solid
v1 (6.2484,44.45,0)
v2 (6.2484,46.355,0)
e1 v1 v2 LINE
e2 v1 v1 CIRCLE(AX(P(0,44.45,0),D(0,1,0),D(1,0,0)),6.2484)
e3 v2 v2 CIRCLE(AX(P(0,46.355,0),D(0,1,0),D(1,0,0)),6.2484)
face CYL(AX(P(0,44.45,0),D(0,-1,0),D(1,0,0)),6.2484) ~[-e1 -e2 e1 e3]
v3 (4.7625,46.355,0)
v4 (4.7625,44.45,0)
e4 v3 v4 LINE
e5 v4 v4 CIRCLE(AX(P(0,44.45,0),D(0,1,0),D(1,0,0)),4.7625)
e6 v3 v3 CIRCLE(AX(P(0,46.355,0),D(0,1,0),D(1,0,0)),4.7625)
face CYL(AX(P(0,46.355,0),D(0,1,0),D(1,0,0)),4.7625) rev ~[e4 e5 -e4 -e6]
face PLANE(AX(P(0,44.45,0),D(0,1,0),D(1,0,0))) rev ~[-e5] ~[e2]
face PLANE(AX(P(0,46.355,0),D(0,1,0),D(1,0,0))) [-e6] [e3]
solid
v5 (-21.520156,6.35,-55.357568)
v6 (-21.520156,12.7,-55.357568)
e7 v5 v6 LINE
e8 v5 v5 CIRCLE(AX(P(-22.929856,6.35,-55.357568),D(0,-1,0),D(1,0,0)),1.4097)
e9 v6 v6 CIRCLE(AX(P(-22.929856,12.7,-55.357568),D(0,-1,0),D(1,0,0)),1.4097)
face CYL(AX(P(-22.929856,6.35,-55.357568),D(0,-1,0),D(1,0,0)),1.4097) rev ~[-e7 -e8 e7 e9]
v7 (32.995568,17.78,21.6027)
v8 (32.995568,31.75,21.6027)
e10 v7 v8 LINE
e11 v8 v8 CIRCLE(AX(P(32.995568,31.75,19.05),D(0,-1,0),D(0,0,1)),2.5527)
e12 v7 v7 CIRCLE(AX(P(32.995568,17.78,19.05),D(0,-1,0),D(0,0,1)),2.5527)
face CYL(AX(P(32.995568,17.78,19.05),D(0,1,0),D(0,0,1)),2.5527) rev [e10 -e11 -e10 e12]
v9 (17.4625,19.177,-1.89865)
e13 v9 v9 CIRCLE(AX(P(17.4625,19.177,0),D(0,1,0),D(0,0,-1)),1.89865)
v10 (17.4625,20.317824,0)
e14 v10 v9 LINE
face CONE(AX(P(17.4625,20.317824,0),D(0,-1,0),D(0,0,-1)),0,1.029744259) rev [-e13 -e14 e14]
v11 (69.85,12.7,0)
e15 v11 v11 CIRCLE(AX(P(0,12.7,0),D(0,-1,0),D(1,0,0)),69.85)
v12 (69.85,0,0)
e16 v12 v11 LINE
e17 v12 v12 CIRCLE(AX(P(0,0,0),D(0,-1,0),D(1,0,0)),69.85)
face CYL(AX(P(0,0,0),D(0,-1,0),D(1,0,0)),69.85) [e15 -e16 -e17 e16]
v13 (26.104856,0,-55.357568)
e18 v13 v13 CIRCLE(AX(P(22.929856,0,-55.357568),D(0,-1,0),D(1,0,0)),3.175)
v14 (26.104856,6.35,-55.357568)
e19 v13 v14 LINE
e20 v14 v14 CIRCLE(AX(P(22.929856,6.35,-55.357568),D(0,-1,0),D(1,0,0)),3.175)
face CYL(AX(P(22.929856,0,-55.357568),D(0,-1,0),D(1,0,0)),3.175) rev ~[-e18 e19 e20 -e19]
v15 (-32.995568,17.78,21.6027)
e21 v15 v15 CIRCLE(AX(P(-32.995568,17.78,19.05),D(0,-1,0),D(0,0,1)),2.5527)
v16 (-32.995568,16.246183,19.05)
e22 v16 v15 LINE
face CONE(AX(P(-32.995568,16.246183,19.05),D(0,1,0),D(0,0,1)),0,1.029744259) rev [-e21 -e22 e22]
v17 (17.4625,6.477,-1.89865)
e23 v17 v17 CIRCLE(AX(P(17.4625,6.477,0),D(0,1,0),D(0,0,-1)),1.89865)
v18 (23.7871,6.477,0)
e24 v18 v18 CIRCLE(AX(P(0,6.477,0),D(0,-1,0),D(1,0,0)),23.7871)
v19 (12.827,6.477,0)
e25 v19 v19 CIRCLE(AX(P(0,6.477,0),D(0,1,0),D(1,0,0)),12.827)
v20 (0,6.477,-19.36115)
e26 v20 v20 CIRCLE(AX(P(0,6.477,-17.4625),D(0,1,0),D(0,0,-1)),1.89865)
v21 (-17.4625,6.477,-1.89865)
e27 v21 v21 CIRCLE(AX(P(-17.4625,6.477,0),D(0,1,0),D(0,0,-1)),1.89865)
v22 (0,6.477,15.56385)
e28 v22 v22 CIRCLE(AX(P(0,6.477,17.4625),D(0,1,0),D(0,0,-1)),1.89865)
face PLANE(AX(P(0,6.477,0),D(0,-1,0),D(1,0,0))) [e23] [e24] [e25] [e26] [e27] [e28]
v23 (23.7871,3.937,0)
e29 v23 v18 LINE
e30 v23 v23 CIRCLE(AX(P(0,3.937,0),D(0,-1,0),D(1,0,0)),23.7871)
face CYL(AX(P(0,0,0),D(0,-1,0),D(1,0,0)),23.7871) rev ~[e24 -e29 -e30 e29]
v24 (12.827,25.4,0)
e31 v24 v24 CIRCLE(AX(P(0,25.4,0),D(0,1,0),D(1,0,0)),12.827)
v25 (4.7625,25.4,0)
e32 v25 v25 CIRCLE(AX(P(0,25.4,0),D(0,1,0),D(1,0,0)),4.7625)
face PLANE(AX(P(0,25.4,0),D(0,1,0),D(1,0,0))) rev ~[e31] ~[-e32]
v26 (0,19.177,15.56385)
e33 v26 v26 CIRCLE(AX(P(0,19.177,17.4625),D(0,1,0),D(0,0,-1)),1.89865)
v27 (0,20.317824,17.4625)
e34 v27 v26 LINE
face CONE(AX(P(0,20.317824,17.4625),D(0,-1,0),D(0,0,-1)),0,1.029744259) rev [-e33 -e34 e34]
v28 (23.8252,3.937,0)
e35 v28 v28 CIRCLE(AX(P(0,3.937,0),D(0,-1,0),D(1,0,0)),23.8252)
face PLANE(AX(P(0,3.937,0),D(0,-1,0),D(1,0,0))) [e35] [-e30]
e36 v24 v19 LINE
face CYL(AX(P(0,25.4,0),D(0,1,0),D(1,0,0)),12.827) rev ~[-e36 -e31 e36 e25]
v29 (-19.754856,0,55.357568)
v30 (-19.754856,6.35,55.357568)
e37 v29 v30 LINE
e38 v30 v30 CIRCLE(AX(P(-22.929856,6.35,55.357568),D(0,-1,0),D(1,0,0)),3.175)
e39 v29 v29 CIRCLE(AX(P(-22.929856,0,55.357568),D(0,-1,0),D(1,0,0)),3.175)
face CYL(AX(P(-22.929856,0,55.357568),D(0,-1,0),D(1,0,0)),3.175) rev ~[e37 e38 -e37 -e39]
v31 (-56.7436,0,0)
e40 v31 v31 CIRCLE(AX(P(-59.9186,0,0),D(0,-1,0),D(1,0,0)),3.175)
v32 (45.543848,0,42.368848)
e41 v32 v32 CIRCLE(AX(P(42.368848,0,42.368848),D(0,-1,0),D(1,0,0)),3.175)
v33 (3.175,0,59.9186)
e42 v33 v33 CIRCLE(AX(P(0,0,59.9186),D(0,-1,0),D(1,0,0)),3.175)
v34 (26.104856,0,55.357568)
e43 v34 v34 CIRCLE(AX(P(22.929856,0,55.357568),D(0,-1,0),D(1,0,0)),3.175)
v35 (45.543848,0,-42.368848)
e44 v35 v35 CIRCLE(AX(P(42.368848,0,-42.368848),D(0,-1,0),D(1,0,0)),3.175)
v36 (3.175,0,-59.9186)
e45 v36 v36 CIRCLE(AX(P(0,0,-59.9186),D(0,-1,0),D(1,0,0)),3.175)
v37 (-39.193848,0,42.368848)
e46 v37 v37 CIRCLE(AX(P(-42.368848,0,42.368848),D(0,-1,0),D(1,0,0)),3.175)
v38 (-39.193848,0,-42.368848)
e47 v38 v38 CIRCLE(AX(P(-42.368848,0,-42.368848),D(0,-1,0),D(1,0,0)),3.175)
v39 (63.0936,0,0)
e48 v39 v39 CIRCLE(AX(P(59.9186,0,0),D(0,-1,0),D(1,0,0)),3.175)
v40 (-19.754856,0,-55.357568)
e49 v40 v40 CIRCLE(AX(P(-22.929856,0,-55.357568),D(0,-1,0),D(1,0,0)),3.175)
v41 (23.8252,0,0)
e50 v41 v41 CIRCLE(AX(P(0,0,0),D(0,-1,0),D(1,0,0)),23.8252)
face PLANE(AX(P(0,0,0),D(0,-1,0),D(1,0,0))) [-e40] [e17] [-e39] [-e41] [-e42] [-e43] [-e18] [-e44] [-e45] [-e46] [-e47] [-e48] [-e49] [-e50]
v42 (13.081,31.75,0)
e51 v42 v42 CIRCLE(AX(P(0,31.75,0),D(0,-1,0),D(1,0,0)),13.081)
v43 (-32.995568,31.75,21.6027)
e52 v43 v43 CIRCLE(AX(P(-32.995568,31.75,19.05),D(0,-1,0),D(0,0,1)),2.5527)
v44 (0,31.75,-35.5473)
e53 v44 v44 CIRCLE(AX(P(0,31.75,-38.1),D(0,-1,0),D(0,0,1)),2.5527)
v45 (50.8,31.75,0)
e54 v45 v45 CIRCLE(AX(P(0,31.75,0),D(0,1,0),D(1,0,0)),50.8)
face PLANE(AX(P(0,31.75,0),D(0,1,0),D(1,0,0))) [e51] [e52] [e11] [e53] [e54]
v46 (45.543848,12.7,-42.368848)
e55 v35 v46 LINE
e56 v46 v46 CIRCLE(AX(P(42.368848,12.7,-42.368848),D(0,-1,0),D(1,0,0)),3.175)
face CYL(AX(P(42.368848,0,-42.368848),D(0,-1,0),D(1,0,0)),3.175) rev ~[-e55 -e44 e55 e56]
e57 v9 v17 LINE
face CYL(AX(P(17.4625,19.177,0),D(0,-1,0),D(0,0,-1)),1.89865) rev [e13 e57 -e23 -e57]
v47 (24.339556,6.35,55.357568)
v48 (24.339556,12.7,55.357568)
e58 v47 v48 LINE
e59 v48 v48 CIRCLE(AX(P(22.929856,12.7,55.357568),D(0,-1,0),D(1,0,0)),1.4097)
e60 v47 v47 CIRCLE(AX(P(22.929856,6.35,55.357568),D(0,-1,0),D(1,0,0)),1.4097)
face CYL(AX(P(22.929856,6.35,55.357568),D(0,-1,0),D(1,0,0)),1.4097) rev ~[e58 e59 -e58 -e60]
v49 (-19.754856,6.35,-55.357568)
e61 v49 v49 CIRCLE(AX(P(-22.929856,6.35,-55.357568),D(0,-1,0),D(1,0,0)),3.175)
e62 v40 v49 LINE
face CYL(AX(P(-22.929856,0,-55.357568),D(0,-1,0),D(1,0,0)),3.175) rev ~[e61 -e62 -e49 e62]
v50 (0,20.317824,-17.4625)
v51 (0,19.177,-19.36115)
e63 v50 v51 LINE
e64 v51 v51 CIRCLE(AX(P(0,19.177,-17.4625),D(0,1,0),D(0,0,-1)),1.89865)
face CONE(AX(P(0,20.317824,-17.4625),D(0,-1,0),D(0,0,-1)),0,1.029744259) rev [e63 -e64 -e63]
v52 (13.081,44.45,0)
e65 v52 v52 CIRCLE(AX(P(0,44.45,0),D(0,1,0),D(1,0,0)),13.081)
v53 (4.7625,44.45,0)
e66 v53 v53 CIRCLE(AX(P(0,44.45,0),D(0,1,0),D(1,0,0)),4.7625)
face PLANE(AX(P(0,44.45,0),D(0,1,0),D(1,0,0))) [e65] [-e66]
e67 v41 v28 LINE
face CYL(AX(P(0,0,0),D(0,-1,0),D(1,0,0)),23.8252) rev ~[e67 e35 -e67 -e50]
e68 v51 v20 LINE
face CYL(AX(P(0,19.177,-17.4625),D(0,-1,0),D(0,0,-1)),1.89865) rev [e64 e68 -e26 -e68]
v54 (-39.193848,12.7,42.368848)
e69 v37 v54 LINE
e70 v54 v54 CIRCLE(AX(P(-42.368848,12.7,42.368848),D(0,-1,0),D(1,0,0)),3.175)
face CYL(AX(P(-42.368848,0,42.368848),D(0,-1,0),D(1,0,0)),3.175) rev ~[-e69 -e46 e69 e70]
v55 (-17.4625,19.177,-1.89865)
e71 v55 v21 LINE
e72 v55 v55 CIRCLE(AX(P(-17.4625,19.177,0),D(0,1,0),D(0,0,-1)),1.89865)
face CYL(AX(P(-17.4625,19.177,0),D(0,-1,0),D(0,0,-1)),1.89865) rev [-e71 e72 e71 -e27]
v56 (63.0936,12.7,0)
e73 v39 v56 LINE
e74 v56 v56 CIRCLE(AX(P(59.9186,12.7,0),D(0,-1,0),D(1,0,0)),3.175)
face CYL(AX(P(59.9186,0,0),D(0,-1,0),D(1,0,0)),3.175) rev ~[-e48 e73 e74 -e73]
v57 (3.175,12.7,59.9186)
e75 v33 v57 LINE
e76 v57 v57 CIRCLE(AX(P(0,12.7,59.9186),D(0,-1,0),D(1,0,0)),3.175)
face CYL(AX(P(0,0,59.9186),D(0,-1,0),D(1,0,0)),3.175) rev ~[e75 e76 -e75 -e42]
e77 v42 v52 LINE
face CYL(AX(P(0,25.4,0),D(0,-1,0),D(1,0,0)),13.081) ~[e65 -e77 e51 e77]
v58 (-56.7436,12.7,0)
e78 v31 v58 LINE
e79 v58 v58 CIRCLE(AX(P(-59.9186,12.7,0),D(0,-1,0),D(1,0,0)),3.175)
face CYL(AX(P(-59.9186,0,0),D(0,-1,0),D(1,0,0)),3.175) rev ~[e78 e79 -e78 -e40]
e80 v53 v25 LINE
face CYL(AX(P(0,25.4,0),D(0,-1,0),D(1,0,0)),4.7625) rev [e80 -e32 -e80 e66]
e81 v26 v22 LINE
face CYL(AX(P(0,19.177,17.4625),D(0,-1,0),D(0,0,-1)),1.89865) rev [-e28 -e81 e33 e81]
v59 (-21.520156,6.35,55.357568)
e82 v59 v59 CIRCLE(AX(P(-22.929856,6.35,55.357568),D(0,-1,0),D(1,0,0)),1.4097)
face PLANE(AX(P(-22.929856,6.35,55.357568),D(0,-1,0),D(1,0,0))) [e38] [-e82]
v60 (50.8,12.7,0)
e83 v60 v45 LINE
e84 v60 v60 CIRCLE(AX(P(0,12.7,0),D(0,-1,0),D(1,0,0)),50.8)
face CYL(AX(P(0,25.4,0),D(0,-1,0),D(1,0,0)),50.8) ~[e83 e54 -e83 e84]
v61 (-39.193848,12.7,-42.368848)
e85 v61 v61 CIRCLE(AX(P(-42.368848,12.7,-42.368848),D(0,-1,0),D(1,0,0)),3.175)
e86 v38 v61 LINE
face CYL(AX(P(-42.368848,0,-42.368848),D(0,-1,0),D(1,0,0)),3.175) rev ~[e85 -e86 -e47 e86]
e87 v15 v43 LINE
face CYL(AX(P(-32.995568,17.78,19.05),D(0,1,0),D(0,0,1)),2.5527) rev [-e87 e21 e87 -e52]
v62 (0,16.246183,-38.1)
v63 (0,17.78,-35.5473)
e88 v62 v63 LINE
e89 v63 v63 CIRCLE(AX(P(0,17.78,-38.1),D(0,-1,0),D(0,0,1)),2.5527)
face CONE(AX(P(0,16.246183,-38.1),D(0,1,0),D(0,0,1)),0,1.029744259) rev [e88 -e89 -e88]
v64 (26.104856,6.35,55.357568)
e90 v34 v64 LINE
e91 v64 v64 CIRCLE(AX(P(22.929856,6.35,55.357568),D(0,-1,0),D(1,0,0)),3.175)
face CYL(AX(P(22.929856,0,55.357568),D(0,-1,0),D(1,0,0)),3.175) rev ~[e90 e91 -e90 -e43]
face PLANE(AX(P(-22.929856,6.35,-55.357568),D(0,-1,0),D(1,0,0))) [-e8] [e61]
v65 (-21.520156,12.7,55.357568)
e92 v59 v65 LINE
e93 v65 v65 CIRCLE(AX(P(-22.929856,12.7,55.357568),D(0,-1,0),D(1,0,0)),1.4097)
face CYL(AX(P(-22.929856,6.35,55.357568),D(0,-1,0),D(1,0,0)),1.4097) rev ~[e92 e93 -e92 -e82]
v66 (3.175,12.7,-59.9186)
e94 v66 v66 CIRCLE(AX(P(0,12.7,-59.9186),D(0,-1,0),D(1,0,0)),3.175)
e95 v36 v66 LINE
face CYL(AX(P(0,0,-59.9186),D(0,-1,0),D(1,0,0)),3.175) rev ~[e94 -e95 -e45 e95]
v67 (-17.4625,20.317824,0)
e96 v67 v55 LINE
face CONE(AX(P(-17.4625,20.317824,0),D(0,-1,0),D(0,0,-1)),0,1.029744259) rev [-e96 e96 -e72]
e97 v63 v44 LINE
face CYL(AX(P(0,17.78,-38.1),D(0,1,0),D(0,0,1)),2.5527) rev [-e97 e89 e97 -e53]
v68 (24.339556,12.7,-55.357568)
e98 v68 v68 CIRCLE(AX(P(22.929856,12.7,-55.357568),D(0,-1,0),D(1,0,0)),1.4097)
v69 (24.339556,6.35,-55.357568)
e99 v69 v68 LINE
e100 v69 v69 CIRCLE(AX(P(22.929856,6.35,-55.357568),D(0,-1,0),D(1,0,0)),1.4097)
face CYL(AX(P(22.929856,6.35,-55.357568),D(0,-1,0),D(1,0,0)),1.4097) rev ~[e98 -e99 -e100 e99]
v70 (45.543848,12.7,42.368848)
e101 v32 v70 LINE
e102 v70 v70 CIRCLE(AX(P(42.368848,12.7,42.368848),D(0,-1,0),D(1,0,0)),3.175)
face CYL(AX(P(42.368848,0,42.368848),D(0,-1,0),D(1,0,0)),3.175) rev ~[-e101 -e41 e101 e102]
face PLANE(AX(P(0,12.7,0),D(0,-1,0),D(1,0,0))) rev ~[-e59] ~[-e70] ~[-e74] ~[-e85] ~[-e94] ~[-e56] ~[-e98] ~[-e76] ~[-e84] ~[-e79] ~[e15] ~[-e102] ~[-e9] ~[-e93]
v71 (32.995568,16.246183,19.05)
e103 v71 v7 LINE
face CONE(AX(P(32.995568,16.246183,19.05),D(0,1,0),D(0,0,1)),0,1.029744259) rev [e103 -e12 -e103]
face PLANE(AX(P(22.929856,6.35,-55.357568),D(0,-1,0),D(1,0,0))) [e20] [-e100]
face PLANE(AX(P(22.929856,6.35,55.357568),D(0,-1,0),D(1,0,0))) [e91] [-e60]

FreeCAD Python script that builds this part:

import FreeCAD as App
import Part
import Sketcher
Q = App.Units.Quantity


def add_polygon(sketch, points):
    """Adds a closed chain of lines whose ends are joined by coincident constraints."""
    first, n = sketch.GeometryCount, len(points)
    for a, b in zip(points, points[1:] + points[:1]):
        sketch.addGeometry(Part.LineSegment(App.Vector(*a, 0), App.Vector(*b, 0)), False)
    for i in range(n):
        sketch.addConstraint(Sketcher.Constraint("Coincident", first + i, 2, first + (i + 1) % n, 1))

doc = App.newDocument("Part")
body = doc.addObject("PartDesign::Body", "Body")

# Sketch on XZ plane
sketch1 = body.newObject("Sketcher::SketchObject", "Sketch")
sketch1.AttachmentSupport = (doc.getObject("XZ_Plane"), [""])
sketch1.MapMode = "FlatFace"
sketch1.addGeometry(Part.Circle(App.Vector(0, 0, 0), App.Vector(0, 0, 1), 51), False)
sketch1.addConstraint([
    Sketcher.Constraint("Coincident", 0, 3, -1, 1),
    Sketcher.Constraint("Diameter", 0, Q("4 in")),
])
pad1 = body.newObject("PartDesign::Pad", "Pad")
pad1.Profile = sketch1
pad1.Length = Q("1 in")
pad1.Reversed = True

# Sketch on XZ plane
sketch2 = body.newObject("Sketcher::SketchObject", "Sketch001")
sketch2.AttachmentSupport = (doc.getObject("XZ_Plane"), [""])
sketch2.MapMode = "FlatFace"
sketch2.addGeometry([
    Part.Circle(App.Vector(0, 0, 0), App.Vector(0, 0, 1), 70),
    Part.Circle(App.Vector(0, 0, 0), App.Vector(0, 0, 1), 51),
], False)
sketch2.addConstraint([
    Sketcher.Constraint("Coincident", 0, 3, -1, 1),
    Sketcher.Constraint("Coincident", 1, 3, -1, 1),
    Sketcher.Constraint("Diameter", 1, Q("4 in")),
    Sketcher.Constraint("Diameter", 0, Q("5.5 in")),
])
pad2 = body.newObject("PartDesign::Pad", "Pad001")
pad2.Profile = sketch2
pad2.Length = Q("0.5 in")
pad2.Reversed = True

# Sketch on XZ plane
sketch3 = body.newObject("Sketcher::SketchObject", "Sketch002")
sketch3.AttachmentSupport = (doc.getObject("XZ_Plane"), [""])
sketch3.MapMode = "FlatFace"
sketch3.addGeometry(Part.Circle(App.Vector(0, -59.9, 0), App.Vector(0, 0, 1), 3.2), False)
sketch3.addConstraint([
    Sketcher.Constraint("PointOnObject", 0, 3, -2),
    Sketcher.Constraint("Diameter", 0, Q("0.25 in")),
    Sketcher.Constraint("DistanceY", 0, 3, -1, 1, Q("2.359 in")),
])
pocket1 = body.newObject("PartDesign::Pocket", "Pocket")
pocket1.Profile = sketch3
pocket1.Type = "UpToFirst"

# Sketch on XZ plane
sketch4 = body.newObject("Sketcher::SketchObject", "Sketch003")
sketch4.AttachmentSupport = (doc.getObject("XZ_Plane"), [""])
sketch4.MapMode = "FlatFace"
sketch4.addGeometry(Part.Circle(App.Vector(-42.4, -42.4, 0), App.Vector(0, 0, 1), 3.2), False)
sketch4.addConstraint([
    Sketcher.Constraint("Diameter", 0, Q("0.25 in")),
    Sketcher.Constraint("DistanceX", 0, 3, -1, 1, Q("42.368848 mm")),
    Sketcher.Constraint("DistanceY", 0, 3, -1, 1, Q("42.368848 mm")),
])
pocket2 = body.newObject("PartDesign::Pocket", "Pocket001")
pocket2.Profile = sketch4
pocket2.Type = "UpToFirst"

# Sketch on XZ plane
sketch5 = body.newObject("Sketcher::SketchObject", "Sketch004")
sketch5.AttachmentSupport = (doc.getObject("XZ_Plane"), [""])
sketch5.MapMode = "FlatFace"
sketch5.addGeometry(Part.Circle(App.Vector(-59.9, 0, 0), App.Vector(0, 0, 1), 3.2), False)
sketch5.addConstraint([
    Sketcher.Constraint("PointOnObject", 0, 3, -1),
    Sketcher.Constraint("Diameter", 0, Q("0.25 in")),
    Sketcher.Constraint("DistanceX", 0, 3, -1, 1, Q("2.359 in")),
])
pocket3 = body.newObject("PartDesign::Pocket", "Pocket002")
pocket3.Profile = sketch5
pocket3.Type = "UpToFirst"

# Sketch on XZ plane
sketch6 = body.newObject("Sketcher::SketchObject", "Sketch005")
sketch6.AttachmentSupport = (doc.getObject("XZ_Plane"), [""])
sketch6.MapMode = "FlatFace"
sketch6.addGeometry(Part.Circle(App.Vector(-42.4, 42.4, 0), App.Vector(0, 0, 1), 3.2), False)
sketch6.addConstraint([
    Sketcher.Constraint("Diameter", 0, Q("0.25 in")),
    Sketcher.Constraint("DistanceX", 0, 3, -1, 1, Q("42.368848 mm")),
    Sketcher.Constraint("DistanceY", -1, 1, 0, 3, Q("42.368848 mm")),
])
pocket4 = body.newObject("PartDesign::Pocket", "Pocket003")
pocket4.Profile = sketch6
pocket4.Type = "UpToFirst"

# Sketch on XZ plane
sketch7 = body.newObject("Sketcher::SketchObject", "Sketch006")
sketch7.AttachmentSupport = (doc.getObject("XZ_Plane"), [""])
sketch7.MapMode = "FlatFace"
sketch7.addGeometry(Part.Circle(App.Vector(0, 59.9, 0), App.Vector(0, 0, 1), 3.2), False)
sketch7.addConstraint([
    Sketcher.Constraint("PointOnObject", 0, 3, -2),
    Sketcher.Constraint("Diameter", 0, Q("0.25 in")),
    Sketcher.Constraint("DistanceY", -1, 1, 0, 3, Q("2.359 in")),
])
pocket5 = body.newObject("PartDesign::Pocket", "Pocket004")
pocket5.Profile = sketch7
pocket5.Type = "UpToFirst"

# Sketch on XZ plane
sketch8 = body.newObject("Sketcher::SketchObject", "Sketch007")
sketch8.AttachmentSupport = (doc.getObject("XZ_Plane"), [""])
sketch8.MapMode = "FlatFace"
sketch8.addGeometry(Part.Circle(App.Vector(42.4, 42.4, 0), App.Vector(0, 0, 1), 3.2), False)
sketch8.addConstraint([
    Sketcher.Constraint("Diameter", 0, Q("0.25 in")),
    Sketcher.Constraint("DistanceX", -1, 1, 0, 3, Q("42.368848 mm")),
    Sketcher.Constraint("DistanceY", -1, 1, 0, 3, Q("42.368848 mm")),
])
pocket6 = body.newObject("PartDesign::Pocket", "Pocket005")
pocket6.Profile = sketch8
pocket6.Type = "UpToFirst"

# Sketch on XZ plane
sketch9 = body.newObject("Sketcher::SketchObject", "Sketch008")
sketch9.AttachmentSupport = (doc.getObject("XZ_Plane"), [""])
sketch9.MapMode = "FlatFace"
sketch9.addGeometry(Part.Circle(App.Vector(59.9, 0, 0), App.Vector(0, 0, 1), 3.2), False)
sketch9.addConstraint([
    Sketcher.Constraint("PointOnObject", 0, 3, -1),
    Sketcher.Constraint("Diameter", 0, Q("0.25 in")),
    Sketcher.Constraint("DistanceX", -1, 1, 0, 3, Q("2.359 in")),
])
pocket7 = body.newObject("PartDesign::Pocket", "Pocket006")
pocket7.Profile = sketch9
pocket7.Type = "UpToFirst"

# Sketch on XZ plane
sketch10 = body.newObject("Sketcher::SketchObject", "Sketch009")
sketch10.AttachmentSupport = (doc.getObject("XZ_Plane"), [""])
sketch10.MapMode = "FlatFace"
sketch10.addGeometry(Part.Circle(App.Vector(42.4, -42.4, 0), App.Vector(0, 0, 1), 3.2), False)
sketch10.addConstraint([
    Sketcher.Constraint("Diameter", 0, Q("0.25 in")),
    Sketcher.Constraint("DistanceX", -1, 1, 0, 3, Q("42.368848 mm")),
    Sketcher.Constraint("DistanceY", 0, 3, -1, 1, Q("42.368848 mm")),
])
pocket8 = body.newObject("PartDesign::Pocket", "Pocket007")
pocket8.Profile = sketch10
pocket8.Type = "UpToFirst"

# Sketch on XZ plane
sketch11 = body.newObject("Sketcher::SketchObject", "Sketch010")
sketch11.AttachmentSupport = (doc.getObject("XZ_Plane"), [""])
sketch11.MapMode = "FlatFace"
sketch11.AttachmentOffset = App.Placement(App.Vector(0, 0, -1 * 25.4), App.Rotation())
sketch11.addGeometry(Part.Circle(App.Vector(0, 0, 0), App.Vector(0, 0, 1), 13), False)
sketch11.addConstraint([
    Sketcher.Constraint("Coincident", 0, 3, -1, 1),
    Sketcher.Constraint("Diameter", 0, Q("1.01 in")),
])
pocket9 = body.newObject("PartDesign::Pocket", "Pocket008")
pocket9.Profile = sketch11
pocket9.Length = Q("0.75 in")
pocket9.Reversed = True

# Sketch on XZ plane
sketch12 = body.newObject("Sketcher::SketchObject", "Sketch011")
sketch12.AttachmentSupport = (doc.getObject("XZ_Plane"), [""])
sketch12.MapMode = "FlatFace"
sketch12.AttachmentOffset = App.Placement(App.Vector(0, 0, -0.25 * 25.4), App.Rotation())
sketch12.addGeometry(Part.Circle(App.Vector(0, 0, 0), App.Vector(0, 0, 1), 1.6), False)
sketch12.addConstraint([
    Sketcher.Constraint("Coincident", 0, 3, -1, 1),
    Sketcher.Constraint("Diameter", 0, Q("0.125 in")),
])
pocket10 = body.newObject("PartDesign::Pocket", "Pocket009")
pocket10.Profile = sketch12
pocket10.Type = "UpToFirst"
pocket10.Reversed = True

# Sketch on XZ plane
sketch13 = body.newObject("Sketcher::SketchObject", "Sketch012")
sketch13.AttachmentSupport = (doc.getObject("XZ_Plane"), [""])
sketch13.MapMode = "FlatFace"
sketch13.AttachmentOffset = App.Placement(App.Vector(0, 0, -1 * 25.4), App.Rotation())
sketch13.addGeometry([
    Part.Circle(App.Vector(0, 0, 0), App.Vector(0, 0, 1), 13.1),
    Part.Circle(App.Vector(0, 0, 0), App.Vector(0, 0, 1), 4.8),
], False)
sketch13.addConstraint([
    Sketcher.Constraint("Coincident", 0, 3, -1, 1),
    Sketcher.Constraint("Coincident", 1, 3, -1, 1),
    Sketcher.Constraint("Diameter", 0, Q("1.03 in")),
    Sketcher.Constraint("Diameter", 1, Q("0.375 in")),
])
pad3 = body.newObject("PartDesign::Pad", "Pad002")
pad3.Profile = sketch13
pad3.Length = Q("0.75 in")
pad3.Reversed = True

# Sketch on XZ plane
sketch14 = body.newObject("Sketcher::SketchObject", "Sketch013")
sketch14.AttachmentSupport = (doc.getObject("XZ_Plane"), [""])
sketch14.MapMode = "FlatFace"
sketch14.AttachmentOffset = App.Placement(App.Vector(0, 0, -1 * 25.4), App.Rotation())
sketch14.addGeometry(Part.Circle(App.Vector(0, 0, 0), App.Vector(0, 0, 1), 51), False)
sketch14.addConstraint([
    Sketcher.Constraint("Coincident", 0, 3, -1, 1),
    Sketcher.Constraint("Diameter", 0, Q("4 in")),
])
pad4 = body.newObject("PartDesign::Pad", "Pad003")
pad4.Profile = sketch14
pad4.Length = Q("0.25 in")
pad4.Reversed = True

# Sketch on XZ plane
sketch15 = body.newObject("Sketcher::SketchObject", "Sketch014")
sketch15.AttachmentSupport = (doc.getObject("XZ_Plane"), [""])
sketch15.MapMode = "FlatFace"
sketch15.AttachmentOffset = App.Placement(App.Vector(0, 0, -1.25 * 25.4), App.Rotation())
sketch15.addGeometry(Part.Circle(App.Vector(0, 0, 0), App.Vector(0, 0, 1), 4.8), False)
sketch15.addConstraint([
    Sketcher.Constraint("Coincident", 0, 3, -1, 1),
    Sketcher.Constraint("Diameter", 0, Q("0.375 in")),
])
pocket11 = body.newObject("PartDesign::Pocket", "Pocket010")
pocket11.Profile = sketch15
pocket11.Length = Q("0.25 in")
pocket11.Reversed = True

# Sketch on XZ plane
sketch16 = body.newObject("Sketcher::SketchObject", "Sketch015")
sketch16.AttachmentSupport = (doc.getObject("XZ_Plane"), [""])
sketch16.MapMode = "FlatFace"
sketch16.addGeometry(Part.Circle(App.Vector(0, 0, 0), App.Vector(0, 0, 1), 24), False)
sketch16.addConstraint([
    Sketcher.Constraint("Coincident", 0, 3, -1, 1),
    Sketcher.Constraint("Diameter", 0, Q("1.873 in")),
])
pocket12 = body.newObject("PartDesign::Pocket", "Pocket011")
pocket12.Profile = sketch16
pocket12.Length = Q("0.255 in")

# Sketch on YZ plane
sketch17 = body.newObject("Sketcher::SketchObject", "Sketch016")
sketch17.AttachmentSupport = (doc.getObject("YZ_Plane"), [""])
sketch17.MapMode = "FlatFace"
add_polygon(sketch17, [(20.3, 17.5), (6.5, 17.5), (6.5, 15.6), (19.2, 15.6)])  # lines 0-3
sketch17.addGeometry(Part.LineSegment(App.Vector(6.5, 17.5, 0), App.Vector(20.3, 17.5, 0)), True)  # axis
sketch17.addConstraint([
    Sketcher.Constraint("Horizontal", 0),
    Sketcher.Constraint("Vertical", 1),
    Sketcher.Constraint("Horizontal", 2),
    Sketcher.Constraint("Horizontal", 4),
    Sketcher.Constraint("Coincident", 4, 1, 0, 2),
    Sketcher.Constraint("Equal", 0, 4),
    Sketcher.Constraint("DistanceX", 2, 1, 2, 2, Q("0.5 in")),
    Sketcher.Constraint("Angle", 3, Q("59 deg")),
    Sketcher.Constraint("DistanceX", -1, 1, 0, 2, Q("0.255 in")),
    Sketcher.Constraint("DistanceY", -1, 1, 0, 2, Q("0.6875 in")),
    Sketcher.Constraint("DistanceY", 1, 2, 1, 1, Q("1.89865 mm")),
])
groove = body.newObject("PartDesign::Groove", "Groove")
groove.Profile = sketch17
groove.ReferenceAxis = (sketch17, ["Axis0"])
groove.Angle = 360
doc.recompute()

datumline = body.newObject("PartDesign::Line", "DatumLine")
datumline.Placement = App.Placement(App.Vector(0, 0, 0), App.Rotation(App.Vector(0, 0, 1), App.Vector(0.707106781, 0, -0.707106781)))
linearpattern = body.newObject("PartDesign::LinearPattern", "LinearPattern")
linearpattern.Originals = [groove]
linearpattern.Direction = (datumline, [""])
linearpattern.Mode = "offset"
linearpattern.Offset = 24.695704
linearpattern.Occurrences = 2
body.Tip = linearpattern
doc.recompute()

linearpattern2 = body.newObject("PartDesign::LinearPattern", "LinearPattern001")
linearpattern2.Originals = [groove]
linearpattern2.Direction = (doc.getObject("Z_Axis"), [""])
linearpattern2.Mode = "offset"
linearpattern2.Offset = Q("1.375 in")
linearpattern2.Occurrences = 2
linearpattern2.Reversed = True
body.Tip = linearpattern2
doc.recompute()

datumline2 = body.newObject("PartDesign::Line", "DatumLine001")
datumline2.Placement = App.Placement(App.Vector(0, 0, 0), App.Rotation(App.Vector(0, 0, 1), App.Vector(-0.707106781, 0, -0.707106781)))
linearpattern3 = body.newObject("PartDesign::LinearPattern", "LinearPattern002")
linearpattern3.Originals = [groove]
linearpattern3.Direction = (datumline2, [""])
linearpattern3.Mode = "offset"
linearpattern3.Offset = 24.695704
linearpattern3.Occurrences = 2
body.Tip = linearpattern3

# Sketch on XZ plane
sketch18 = body.newObject("Sketcher::SketchObject", "Sketch017")
sketch18.AttachmentSupport = (doc.getObject("XZ_Plane"), [""])
sketch18.MapMode = "FlatFace"
sketch18.addGeometry([
    Part.Circle(App.Vector(-22.9, 55.4, 0), App.Vector(0, 0, 1), 3.2),
    Part.Circle(App.Vector(22.9, 55.4, 0), App.Vector(0, 0, 1), 3.2),
    Part.Circle(App.Vector(-22.9, -55.4, 0), App.Vector(0, 0, 1), 3.2),
    Part.Circle(App.Vector(22.9, -55.4, 0), App.Vector(0, 0, 1), 3.2),
], False)
sketch18.addConstraint([
    Sketcher.Constraint("Equal", 0, 1),
    Sketcher.Constraint("Equal", 1, 2),
    Sketcher.Constraint("Equal", 2, 3),
    Sketcher.Constraint("Symmetric", 1, 3, 2, 3, -1, 1),
    Sketcher.Constraint("Symmetric", 0, 3, 3, 3, -1, 1),
    Sketcher.Constraint("Symmetric", 0, 3, 1, 3, -2),
    Sketcher.Constraint("Diameter", 0, Q("0.25 in")),
    Sketcher.Constraint("DistanceY", -1, 1, 0, 3, Q("55.357568 mm")),
    Sketcher.Constraint("DistanceX", 0, 3, 1, 3, Q("45.859711 mm")),
])
pocket13 = body.newObject("PartDesign::Pocket", "Pocket012")
pocket13.Profile = sketch18
pocket13.Length = Q("0.25 in")

# Sketch on YZ plane
sketch19 = body.newObject("Sketcher::SketchObject", "Sketch018")
sketch19.AttachmentSupport = (doc.getObject("YZ_Plane"), [""])
sketch19.MapMode = "FlatFace"
add_polygon(sketch19, [(16.2, -38.1), (31.8, -38.1), (31.8, -35.5), (17.8, -35.5)])  # lines 0-3
sketch19.addGeometry(Part.LineSegment(App.Vector(31.8, -38.1, 0), App.Vector(16.2, -38.1, 0)), True)  # axis
sketch19.addConstraint([
    Sketcher.Constraint("Horizontal", 0),
    Sketcher.Constraint("Vertical", 1),
    Sketcher.Constraint("Horizontal", 2),
    Sketcher.Constraint("Horizontal", 4),
    Sketcher.Constraint("Coincident", 4, 1, 0, 2),
    Sketcher.Constraint("Equal", 0, 4),
    Sketcher.Constraint("Angle", 3, Q("-121 deg")),
    Sketcher.Constraint("DistanceX", 2, 2, 2, 1, Q("0.55 in")),
    Sketcher.Constraint("DistanceY", 0, 2, -1, 1, Q("1.5 in")),
    Sketcher.Constraint("DistanceX", -1, 1, 2, 2, Q("0.7 in")),
    Sketcher.Constraint("DistanceY", 1, 1, 1, 2, Q("0.1005 in")),
])
groove2 = body.newObject("PartDesign::Groove", "Groove001")
groove2.Profile = sketch19
groove2.ReferenceAxis = (sketch19, ["Axis0"])
groove2.Angle = 360
doc.recompute()

datumline3 = body.newObject("PartDesign::Line", "DatumLine002")
datumline3.Placement = App.Placement(App.Vector(0, 0, 0), App.Rotation(App.Vector(0, 0, 1), App.Vector(0.5, 0, 0.866025404)))
linearpattern4 = body.newObject("PartDesign::LinearPattern", "LinearPattern003")
linearpattern4.Originals = [groove2]
linearpattern4.Direction = (datumline3, [""])
linearpattern4.Mode = "offset"
linearpattern4.Offset = 65.991136
linearpattern4.Occurrences = 2
body.Tip = linearpattern4
doc.recompute()

datumline4 = body.newObject("PartDesign::Line", "DatumLine003")
datumline4.Placement = App.Placement(App.Vector(0, 0, 0), App.Rotation(App.Vector(0, 0, 1), App.Vector(-0.5, 0, 0.866025404)))
linearpattern5 = body.newObject("PartDesign::LinearPattern", "LinearPattern004")
linearpattern5.Originals = [groove2]
linearpattern5.Direction = (datumline4, [""])
linearpattern5.Mode = "offset"
linearpattern5.Offset = 65.991136
linearpattern5.Occurrences = 2
body.Tip = linearpattern5

# Sketch on XZ plane
sketch20 = body.newObject("Sketcher::SketchObject", "Sketch019")
sketch20.AttachmentSupport = (doc.getObject("XZ_Plane"), [""])
sketch20.MapMode = "FlatFace"
sketch20.addGeometry(Part.Circle(App.Vector(0, 0, 0), App.Vector(0, 0, 1), 24), False)
sketch20.addConstraint([
    Sketcher.Constraint("Coincident", 0, 3, -1, 1),
    Sketcher.Constraint("Diameter", 0, Q("1.876 in")),
])
pocket14 = body.newObject("PartDesign::Pocket", "Pocket013")
pocket14.Profile = sketch20
pocket14.Length = Q("0.155 in")

# Sketch on XZ plane
sketch21 = body.newObject("Sketcher::SketchObject", "Sketch020")
sketch21.AttachmentSupport = (doc.getObject("XZ_Plane"), [""])
sketch21.MapMode = "FlatFace"
sketch21.AttachmentOffset = App.Placement(App.Vector(0, 0, -0.25 * 25.4), App.Rotation())
sketch21.addGeometry([
    Part.Circle(App.Vector(-22.9, 55.4, 0), App.Vector(0, 0, 1), 1.4),
    Part.Circle(App.Vector(22.9, 55.4, 0), App.Vector(0, 0, 1), 1.4),
    Part.Circle(App.Vector(-22.9, -55.4, 0), App.Vector(0, 0, 1), 1.4),
    Part.Circle(App.Vector(22.9, -55.4, 0), App.Vector(0, 0, 1), 1.4),
], False)
sketch21.addConstraint([
    Sketcher.Constraint("Equal", 0, 1),
    Sketcher.Constraint("Equal", 1, 2),
    Sketcher.Constraint("Equal", 2, 3),
    Sketcher.Constraint("Symmetric", 1, 3, 2, 3, -1, 1),
    Sketcher.Constraint("Symmetric", 0, 3, 3, 3, -1, 1),
    Sketcher.Constraint("Symmetric", 0, 3, 1, 3, -2),
    Sketcher.Constraint("Diameter", 0, Q("0.111 in")),
    Sketcher.Constraint("DistanceY", -1, 1, 0, 3, Q("55.357568 mm")),
    Sketcher.Constraint("DistanceX", 0, 3, 1, 3, Q("45.859711 mm")),
])
pocket15 = body.newObject("PartDesign::Pocket", "Pocket014")
pocket15.Profile = sketch21
pocket15.Type = "ThroughAll"
body2 = doc.addObject("PartDesign::Body", "Body001")

# Sketch on XZ plane
sketch22 = body2.newObject("Sketcher::SketchObject", "Sketch021")
sketch22.AttachmentSupport = (doc.getObject("XZ_Plane001"), [""])
sketch22.MapMode = "FlatFace"
sketch22.AttachmentOffset = App.Placement(App.Vector(0, 0, -1.75 * 25.4), App.Rotation())
sketch22.addGeometry(Part.Circle(App.Vector(0, 0, 0), App.Vector(0, 0, 1), 6), False)
sketch22.addConstraint([
    Sketcher.Constraint("Coincident", 0, 3, -1, 1),
    Sketcher.Constraint("Diameter", 0, Q("0.492 in")),
])
pad5 = body2.newObject("PartDesign::Pad", "Pad004")
pad5.Profile = sketch22
pad5.Length = Q("0.075 in")
pad5.Reversed = True

# Sketch on XZ plane
sketch23 = body2.newObject("Sketcher::SketchObject", "Sketch022")
sketch23.AttachmentSupport = (doc.getObject("XZ_Plane001"), [""])
sketch23.MapMode = "FlatFace"
sketch23.AttachmentOffset = App.Placement(App.Vector(0, 0, -1.825 * 25.4), App.Rotation())
sketch23.addGeometry(Part.Circle(App.Vector(0, 0, 0), App.Vector(0, 0, 1), 4.8), False)
sketch23.addConstraint([
    Sketcher.Constraint("Coincident", 0, 3, -1, 1),
    Sketcher.Constraint("Diameter", 0, Q("0.375 in")),
])
pocket16 = body2.newObject("PartDesign::Pocket", "Pocket015")
pocket16.Profile = sketch23
pocket16.Length = Q("0.25 in")
pocket16.Reversed = True

doc.recompute()
